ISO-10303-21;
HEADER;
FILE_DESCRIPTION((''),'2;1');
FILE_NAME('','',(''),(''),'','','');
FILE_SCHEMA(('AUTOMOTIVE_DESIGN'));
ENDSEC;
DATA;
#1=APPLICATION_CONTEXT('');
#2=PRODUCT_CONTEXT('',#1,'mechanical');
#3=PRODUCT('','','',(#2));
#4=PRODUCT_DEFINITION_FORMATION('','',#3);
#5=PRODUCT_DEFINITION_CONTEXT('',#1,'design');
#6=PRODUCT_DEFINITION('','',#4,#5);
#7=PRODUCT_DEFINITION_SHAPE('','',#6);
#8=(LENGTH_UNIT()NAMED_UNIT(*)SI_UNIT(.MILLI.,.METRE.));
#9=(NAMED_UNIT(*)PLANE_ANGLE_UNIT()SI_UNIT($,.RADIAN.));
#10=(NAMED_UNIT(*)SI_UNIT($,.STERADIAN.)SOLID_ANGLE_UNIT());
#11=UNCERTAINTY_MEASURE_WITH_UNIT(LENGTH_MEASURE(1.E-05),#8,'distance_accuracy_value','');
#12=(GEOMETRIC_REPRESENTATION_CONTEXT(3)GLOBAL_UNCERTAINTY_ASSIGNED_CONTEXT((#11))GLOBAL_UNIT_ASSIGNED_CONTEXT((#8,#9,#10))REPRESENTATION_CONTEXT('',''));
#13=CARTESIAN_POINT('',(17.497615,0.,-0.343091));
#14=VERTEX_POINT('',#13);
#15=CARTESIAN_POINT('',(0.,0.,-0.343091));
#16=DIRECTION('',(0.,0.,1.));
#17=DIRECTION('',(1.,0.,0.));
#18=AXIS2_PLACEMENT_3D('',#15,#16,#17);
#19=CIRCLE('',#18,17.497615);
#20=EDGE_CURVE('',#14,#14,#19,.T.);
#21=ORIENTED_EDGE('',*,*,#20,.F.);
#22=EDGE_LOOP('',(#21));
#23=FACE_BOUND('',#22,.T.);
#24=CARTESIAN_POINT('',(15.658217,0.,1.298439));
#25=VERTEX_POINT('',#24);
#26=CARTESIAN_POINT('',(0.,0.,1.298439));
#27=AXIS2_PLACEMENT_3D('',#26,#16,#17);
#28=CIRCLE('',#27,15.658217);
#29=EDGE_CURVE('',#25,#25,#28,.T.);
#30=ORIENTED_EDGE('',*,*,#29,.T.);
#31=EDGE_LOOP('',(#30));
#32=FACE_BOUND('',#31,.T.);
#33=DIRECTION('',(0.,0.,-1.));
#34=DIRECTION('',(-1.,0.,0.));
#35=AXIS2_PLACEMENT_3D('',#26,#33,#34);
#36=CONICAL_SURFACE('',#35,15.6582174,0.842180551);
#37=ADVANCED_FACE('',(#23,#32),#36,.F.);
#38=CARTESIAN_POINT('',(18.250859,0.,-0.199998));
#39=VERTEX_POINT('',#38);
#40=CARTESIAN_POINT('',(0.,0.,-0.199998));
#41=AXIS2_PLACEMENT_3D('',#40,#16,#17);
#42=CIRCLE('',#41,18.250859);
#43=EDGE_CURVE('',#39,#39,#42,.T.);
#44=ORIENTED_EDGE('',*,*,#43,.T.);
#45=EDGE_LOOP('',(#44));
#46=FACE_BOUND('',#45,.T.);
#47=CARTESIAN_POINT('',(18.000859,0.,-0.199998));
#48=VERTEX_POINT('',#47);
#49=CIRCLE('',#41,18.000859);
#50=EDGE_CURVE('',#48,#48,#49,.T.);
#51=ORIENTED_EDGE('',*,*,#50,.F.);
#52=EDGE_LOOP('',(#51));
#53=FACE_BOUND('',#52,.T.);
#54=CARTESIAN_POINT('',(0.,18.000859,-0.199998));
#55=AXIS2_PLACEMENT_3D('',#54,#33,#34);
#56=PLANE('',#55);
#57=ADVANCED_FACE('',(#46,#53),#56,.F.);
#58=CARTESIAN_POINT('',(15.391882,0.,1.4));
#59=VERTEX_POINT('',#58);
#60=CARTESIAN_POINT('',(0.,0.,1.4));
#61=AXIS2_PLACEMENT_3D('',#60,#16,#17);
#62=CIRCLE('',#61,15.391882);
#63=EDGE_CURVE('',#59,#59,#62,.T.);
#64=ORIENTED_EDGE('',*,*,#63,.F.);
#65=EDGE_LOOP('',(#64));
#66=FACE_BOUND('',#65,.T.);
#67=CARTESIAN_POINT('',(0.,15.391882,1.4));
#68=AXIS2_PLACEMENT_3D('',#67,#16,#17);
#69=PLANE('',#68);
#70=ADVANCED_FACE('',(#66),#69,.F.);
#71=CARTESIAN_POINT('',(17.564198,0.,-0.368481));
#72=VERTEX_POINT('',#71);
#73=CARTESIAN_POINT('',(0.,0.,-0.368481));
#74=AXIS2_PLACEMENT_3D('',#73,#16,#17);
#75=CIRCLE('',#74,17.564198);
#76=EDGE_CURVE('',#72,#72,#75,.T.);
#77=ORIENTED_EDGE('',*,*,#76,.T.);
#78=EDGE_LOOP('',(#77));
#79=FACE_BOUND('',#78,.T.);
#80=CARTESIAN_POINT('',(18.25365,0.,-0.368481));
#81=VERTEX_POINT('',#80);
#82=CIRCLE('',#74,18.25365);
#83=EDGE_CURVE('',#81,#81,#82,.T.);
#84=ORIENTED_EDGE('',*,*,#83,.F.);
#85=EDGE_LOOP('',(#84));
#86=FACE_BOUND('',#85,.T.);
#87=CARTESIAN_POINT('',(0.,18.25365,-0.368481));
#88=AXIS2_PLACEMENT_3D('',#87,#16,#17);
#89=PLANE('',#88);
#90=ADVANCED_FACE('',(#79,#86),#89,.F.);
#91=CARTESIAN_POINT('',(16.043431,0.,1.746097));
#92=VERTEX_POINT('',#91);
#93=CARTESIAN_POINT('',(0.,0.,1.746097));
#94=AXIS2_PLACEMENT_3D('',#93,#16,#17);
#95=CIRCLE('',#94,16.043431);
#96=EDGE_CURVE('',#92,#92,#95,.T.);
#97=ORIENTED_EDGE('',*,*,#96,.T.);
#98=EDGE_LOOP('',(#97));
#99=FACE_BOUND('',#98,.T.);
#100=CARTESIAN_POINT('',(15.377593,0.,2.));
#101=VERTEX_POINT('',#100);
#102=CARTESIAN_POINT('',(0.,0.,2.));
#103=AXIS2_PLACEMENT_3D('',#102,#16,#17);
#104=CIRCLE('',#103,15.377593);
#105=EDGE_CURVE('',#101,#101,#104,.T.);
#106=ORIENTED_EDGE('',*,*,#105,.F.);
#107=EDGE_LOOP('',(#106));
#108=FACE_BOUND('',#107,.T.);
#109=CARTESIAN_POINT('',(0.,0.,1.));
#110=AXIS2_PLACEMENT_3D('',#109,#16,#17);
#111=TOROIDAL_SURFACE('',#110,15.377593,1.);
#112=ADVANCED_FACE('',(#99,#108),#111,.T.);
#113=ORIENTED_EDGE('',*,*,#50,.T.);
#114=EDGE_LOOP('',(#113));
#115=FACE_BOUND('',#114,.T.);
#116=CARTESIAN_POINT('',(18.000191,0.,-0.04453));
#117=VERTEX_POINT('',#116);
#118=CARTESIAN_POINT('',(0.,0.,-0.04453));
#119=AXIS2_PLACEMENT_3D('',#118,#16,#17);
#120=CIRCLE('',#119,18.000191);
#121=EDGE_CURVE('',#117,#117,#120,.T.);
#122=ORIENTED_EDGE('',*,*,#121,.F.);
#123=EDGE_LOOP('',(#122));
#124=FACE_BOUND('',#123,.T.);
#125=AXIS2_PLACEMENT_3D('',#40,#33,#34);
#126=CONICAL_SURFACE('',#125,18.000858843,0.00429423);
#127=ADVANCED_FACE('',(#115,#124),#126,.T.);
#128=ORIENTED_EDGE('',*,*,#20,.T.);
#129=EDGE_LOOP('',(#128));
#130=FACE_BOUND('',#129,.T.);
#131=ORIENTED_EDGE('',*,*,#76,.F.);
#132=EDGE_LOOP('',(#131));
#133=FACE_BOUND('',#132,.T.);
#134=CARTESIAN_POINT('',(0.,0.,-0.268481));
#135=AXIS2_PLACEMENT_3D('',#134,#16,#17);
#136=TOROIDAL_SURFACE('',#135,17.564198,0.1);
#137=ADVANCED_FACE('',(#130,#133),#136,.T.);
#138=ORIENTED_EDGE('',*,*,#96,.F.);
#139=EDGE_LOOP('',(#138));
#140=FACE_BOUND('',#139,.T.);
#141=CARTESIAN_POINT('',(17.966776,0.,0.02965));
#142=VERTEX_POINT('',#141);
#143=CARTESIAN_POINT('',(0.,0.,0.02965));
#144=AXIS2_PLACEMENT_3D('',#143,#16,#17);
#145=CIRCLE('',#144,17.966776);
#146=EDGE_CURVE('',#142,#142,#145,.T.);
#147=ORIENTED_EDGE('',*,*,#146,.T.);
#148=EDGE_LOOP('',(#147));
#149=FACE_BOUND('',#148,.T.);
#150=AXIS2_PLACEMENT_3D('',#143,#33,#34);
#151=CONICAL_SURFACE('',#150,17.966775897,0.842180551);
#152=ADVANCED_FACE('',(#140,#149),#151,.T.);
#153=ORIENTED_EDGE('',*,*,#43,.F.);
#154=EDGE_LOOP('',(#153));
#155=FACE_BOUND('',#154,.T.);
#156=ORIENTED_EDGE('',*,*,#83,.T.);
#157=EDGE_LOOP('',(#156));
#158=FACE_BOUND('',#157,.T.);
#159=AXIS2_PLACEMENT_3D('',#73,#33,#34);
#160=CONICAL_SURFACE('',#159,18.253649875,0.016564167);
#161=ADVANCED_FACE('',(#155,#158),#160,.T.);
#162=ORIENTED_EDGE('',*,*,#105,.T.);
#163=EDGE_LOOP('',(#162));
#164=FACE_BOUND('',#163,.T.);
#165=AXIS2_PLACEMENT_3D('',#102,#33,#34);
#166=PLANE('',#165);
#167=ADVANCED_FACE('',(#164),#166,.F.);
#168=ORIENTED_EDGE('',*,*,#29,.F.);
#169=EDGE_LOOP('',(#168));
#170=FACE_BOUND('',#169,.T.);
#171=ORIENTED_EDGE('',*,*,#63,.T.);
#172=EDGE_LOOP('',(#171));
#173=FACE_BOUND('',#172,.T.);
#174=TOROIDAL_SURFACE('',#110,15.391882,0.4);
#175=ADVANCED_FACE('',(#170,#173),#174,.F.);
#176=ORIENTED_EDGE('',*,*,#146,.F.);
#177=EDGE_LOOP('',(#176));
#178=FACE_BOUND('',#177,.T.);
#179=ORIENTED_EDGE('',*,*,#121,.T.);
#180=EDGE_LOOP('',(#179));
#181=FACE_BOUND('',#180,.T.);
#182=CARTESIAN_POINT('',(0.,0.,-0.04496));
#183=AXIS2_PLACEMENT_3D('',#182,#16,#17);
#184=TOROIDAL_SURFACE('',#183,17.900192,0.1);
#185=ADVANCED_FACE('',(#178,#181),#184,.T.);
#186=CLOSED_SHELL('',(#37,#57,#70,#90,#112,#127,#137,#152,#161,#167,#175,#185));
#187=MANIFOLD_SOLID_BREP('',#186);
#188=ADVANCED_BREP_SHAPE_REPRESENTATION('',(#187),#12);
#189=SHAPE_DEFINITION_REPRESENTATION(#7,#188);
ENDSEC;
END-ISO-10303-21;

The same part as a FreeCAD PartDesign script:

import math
import FreeCAD as App
import Part
import Sketcher

V = App.Vector

doc = App.newDocument("Part")
body = doc.addObject("PartDesign::Body", "Body")

# Sketch on YZ plane
sketch1 = doc.addObject("Sketcher::SketchObject", "Sketch")
body.addObject(sketch1)
sketch1.AttachmentSupport = (doc.YZ_Plane, [""])
sketch1.MapMode = "FlatFace"
sketch1.addGeometry([
    Part.LineSegment(V(18.25365, -0.368481, 0), V(18.250859, -0.199998, 0)),  # 0
    Part.LineSegment(V(18.250859, -0.199998, 0), V(18.000859, -0.199998, 0)),  # 1
    Part.LineSegment(V(18.000859, -0.199998, 0), V(18.000191, -0.04453, 0)),  # 2
    Part.ArcOfCircle(Part.Circle(V(17.900192, -0.04496, 0), V(0, 0, 1), 0.1), math.radians(0.246041), math.radians(48.253391)),  # 3
    Part.LineSegment(V(17.966776, 0.02965, 0), V(16.043431, 1.746097, 0)),  # 4
    Part.ArcOfCircle(Part.Circle(V(15.377593, 1, 0), V(0, 0, 1), 1), math.radians(48.253391), math.radians(90)),  # 5
    Part.LineSegment(V(15.377593, 2, 0), V(0, 2, 0)),  # 6
    Part.LineSegment(V(0, 2, 0), V(0, 1.4, 0)),  # 7
    Part.LineSegment(V(0, 1.4, 0), V(15.391882, 1.4, 0)),  # 8
    Part.ArcOfCircle(Part.Circle(V(15.391882, 1, 0), V(0, 0, 1), 0.4), math.radians(48.253391), math.radians(90)),  # 9
    Part.LineSegment(V(15.658217, 1.298439, 0), V(17.497615, -0.343091, 0)),  # 10
    Part.ArcOfCircle(Part.Circle(V(17.564198, -0.268481, 0), V(0, 0, 1), 0.1), math.radians(-131.74661), math.radians(-89.999998)),  # 11
    Part.LineSegment(V(17.564198, -0.368481, 0), V(18.25365, -0.368481, 0)),  # 12
], False)
sketch1.addConstraint([
    Sketcher.Constraint("Coincident", 0, 2, 1, 1),
    Sketcher.Constraint("Coincident", 1, 2, 2, 1),
    Sketcher.Constraint("Tangent", 2, 2, 3, 1),
    Sketcher.Constraint("Tangent", 3, 2, 4, 1),
    Sketcher.Constraint("Tangent", 4, 2, 5, 1),
    Sketcher.Constraint("Tangent", 5, 2, 6, 1),
    Sketcher.Constraint("Coincident", 6, 2, 7, 1),
    Sketcher.Constraint("Coincident", 7, 2, 8, 1),
    Sketcher.Constraint("Tangent", 8, 2, 9, 2),
    Sketcher.Constraint("Tangent", 9, 1, 10, 1),
    Sketcher.Constraint("Tangent", 10, 2, 11, 1),
    Sketcher.Constraint("Tangent", 11, 2, 12, 1),
    Sketcher.Constraint("Coincident", 12, 2, 0, 1),
    Sketcher.Constraint("Horizontal", 1),
    Sketcher.Constraint("Horizontal", 6),
    Sketcher.Constraint("Vertical", 7),
    Sketcher.Constraint("Horizontal", 8),
    Sketcher.Constraint("Horizontal", 12),
    Sketcher.Constraint("Equal", 3, 11),
    Sketcher.Constraint("PointOnObject", 6, 2, -2),
    Sketcher.Constraint("Parallel", 4, 10),
    Sketcher.Constraint("Horizontal", 5, 3, 9, 3),
    Sketcher.Constraint("Radius", 5, 1.0),
    Sketcher.Constraint("Radius", 3, 0.1),
    Sketcher.Constraint("Radius", 9, 0.4),
    Sketcher.Constraint("DistanceY", -1, 1, 5, 3, 1.0),
    Sketcher.Constraint("DistanceX", 1, 2, 1, 1, 0.25),
    Sketcher.Constraint("DistanceY", 0, 2, -1, 1, 0.199998),
    Sketcher.Constraint("DistanceX", 12, 1, 12, 2, 0.689451),
    Sketcher.Constraint("DistanceX", -1, 1, 11, 3, 17.564198),
    Sketcher.Constraint("DistanceX", 5, 3, 3, 3, 2.522599),
    Sketcher.Constraint("Distance", 2, 0.155469),
    Sketcher.Constraint("Distance", 10, 2.46536),
    Sketcher.Constraint("DistanceX", 6, 2, 6, 1, 15.377593),
    Sketcher.Constraint("DistanceX", 8, 1, 8, 2, 15.391882),
])
revolution = doc.addObject("PartDesign::Revolution", "Revolution")
body.addObject(revolution)
revolution.Profile = sketch1
revolution.ReferenceAxis = (sketch1, ["V_Axis"])
revolution.Angle = 360

doc.recompute()
